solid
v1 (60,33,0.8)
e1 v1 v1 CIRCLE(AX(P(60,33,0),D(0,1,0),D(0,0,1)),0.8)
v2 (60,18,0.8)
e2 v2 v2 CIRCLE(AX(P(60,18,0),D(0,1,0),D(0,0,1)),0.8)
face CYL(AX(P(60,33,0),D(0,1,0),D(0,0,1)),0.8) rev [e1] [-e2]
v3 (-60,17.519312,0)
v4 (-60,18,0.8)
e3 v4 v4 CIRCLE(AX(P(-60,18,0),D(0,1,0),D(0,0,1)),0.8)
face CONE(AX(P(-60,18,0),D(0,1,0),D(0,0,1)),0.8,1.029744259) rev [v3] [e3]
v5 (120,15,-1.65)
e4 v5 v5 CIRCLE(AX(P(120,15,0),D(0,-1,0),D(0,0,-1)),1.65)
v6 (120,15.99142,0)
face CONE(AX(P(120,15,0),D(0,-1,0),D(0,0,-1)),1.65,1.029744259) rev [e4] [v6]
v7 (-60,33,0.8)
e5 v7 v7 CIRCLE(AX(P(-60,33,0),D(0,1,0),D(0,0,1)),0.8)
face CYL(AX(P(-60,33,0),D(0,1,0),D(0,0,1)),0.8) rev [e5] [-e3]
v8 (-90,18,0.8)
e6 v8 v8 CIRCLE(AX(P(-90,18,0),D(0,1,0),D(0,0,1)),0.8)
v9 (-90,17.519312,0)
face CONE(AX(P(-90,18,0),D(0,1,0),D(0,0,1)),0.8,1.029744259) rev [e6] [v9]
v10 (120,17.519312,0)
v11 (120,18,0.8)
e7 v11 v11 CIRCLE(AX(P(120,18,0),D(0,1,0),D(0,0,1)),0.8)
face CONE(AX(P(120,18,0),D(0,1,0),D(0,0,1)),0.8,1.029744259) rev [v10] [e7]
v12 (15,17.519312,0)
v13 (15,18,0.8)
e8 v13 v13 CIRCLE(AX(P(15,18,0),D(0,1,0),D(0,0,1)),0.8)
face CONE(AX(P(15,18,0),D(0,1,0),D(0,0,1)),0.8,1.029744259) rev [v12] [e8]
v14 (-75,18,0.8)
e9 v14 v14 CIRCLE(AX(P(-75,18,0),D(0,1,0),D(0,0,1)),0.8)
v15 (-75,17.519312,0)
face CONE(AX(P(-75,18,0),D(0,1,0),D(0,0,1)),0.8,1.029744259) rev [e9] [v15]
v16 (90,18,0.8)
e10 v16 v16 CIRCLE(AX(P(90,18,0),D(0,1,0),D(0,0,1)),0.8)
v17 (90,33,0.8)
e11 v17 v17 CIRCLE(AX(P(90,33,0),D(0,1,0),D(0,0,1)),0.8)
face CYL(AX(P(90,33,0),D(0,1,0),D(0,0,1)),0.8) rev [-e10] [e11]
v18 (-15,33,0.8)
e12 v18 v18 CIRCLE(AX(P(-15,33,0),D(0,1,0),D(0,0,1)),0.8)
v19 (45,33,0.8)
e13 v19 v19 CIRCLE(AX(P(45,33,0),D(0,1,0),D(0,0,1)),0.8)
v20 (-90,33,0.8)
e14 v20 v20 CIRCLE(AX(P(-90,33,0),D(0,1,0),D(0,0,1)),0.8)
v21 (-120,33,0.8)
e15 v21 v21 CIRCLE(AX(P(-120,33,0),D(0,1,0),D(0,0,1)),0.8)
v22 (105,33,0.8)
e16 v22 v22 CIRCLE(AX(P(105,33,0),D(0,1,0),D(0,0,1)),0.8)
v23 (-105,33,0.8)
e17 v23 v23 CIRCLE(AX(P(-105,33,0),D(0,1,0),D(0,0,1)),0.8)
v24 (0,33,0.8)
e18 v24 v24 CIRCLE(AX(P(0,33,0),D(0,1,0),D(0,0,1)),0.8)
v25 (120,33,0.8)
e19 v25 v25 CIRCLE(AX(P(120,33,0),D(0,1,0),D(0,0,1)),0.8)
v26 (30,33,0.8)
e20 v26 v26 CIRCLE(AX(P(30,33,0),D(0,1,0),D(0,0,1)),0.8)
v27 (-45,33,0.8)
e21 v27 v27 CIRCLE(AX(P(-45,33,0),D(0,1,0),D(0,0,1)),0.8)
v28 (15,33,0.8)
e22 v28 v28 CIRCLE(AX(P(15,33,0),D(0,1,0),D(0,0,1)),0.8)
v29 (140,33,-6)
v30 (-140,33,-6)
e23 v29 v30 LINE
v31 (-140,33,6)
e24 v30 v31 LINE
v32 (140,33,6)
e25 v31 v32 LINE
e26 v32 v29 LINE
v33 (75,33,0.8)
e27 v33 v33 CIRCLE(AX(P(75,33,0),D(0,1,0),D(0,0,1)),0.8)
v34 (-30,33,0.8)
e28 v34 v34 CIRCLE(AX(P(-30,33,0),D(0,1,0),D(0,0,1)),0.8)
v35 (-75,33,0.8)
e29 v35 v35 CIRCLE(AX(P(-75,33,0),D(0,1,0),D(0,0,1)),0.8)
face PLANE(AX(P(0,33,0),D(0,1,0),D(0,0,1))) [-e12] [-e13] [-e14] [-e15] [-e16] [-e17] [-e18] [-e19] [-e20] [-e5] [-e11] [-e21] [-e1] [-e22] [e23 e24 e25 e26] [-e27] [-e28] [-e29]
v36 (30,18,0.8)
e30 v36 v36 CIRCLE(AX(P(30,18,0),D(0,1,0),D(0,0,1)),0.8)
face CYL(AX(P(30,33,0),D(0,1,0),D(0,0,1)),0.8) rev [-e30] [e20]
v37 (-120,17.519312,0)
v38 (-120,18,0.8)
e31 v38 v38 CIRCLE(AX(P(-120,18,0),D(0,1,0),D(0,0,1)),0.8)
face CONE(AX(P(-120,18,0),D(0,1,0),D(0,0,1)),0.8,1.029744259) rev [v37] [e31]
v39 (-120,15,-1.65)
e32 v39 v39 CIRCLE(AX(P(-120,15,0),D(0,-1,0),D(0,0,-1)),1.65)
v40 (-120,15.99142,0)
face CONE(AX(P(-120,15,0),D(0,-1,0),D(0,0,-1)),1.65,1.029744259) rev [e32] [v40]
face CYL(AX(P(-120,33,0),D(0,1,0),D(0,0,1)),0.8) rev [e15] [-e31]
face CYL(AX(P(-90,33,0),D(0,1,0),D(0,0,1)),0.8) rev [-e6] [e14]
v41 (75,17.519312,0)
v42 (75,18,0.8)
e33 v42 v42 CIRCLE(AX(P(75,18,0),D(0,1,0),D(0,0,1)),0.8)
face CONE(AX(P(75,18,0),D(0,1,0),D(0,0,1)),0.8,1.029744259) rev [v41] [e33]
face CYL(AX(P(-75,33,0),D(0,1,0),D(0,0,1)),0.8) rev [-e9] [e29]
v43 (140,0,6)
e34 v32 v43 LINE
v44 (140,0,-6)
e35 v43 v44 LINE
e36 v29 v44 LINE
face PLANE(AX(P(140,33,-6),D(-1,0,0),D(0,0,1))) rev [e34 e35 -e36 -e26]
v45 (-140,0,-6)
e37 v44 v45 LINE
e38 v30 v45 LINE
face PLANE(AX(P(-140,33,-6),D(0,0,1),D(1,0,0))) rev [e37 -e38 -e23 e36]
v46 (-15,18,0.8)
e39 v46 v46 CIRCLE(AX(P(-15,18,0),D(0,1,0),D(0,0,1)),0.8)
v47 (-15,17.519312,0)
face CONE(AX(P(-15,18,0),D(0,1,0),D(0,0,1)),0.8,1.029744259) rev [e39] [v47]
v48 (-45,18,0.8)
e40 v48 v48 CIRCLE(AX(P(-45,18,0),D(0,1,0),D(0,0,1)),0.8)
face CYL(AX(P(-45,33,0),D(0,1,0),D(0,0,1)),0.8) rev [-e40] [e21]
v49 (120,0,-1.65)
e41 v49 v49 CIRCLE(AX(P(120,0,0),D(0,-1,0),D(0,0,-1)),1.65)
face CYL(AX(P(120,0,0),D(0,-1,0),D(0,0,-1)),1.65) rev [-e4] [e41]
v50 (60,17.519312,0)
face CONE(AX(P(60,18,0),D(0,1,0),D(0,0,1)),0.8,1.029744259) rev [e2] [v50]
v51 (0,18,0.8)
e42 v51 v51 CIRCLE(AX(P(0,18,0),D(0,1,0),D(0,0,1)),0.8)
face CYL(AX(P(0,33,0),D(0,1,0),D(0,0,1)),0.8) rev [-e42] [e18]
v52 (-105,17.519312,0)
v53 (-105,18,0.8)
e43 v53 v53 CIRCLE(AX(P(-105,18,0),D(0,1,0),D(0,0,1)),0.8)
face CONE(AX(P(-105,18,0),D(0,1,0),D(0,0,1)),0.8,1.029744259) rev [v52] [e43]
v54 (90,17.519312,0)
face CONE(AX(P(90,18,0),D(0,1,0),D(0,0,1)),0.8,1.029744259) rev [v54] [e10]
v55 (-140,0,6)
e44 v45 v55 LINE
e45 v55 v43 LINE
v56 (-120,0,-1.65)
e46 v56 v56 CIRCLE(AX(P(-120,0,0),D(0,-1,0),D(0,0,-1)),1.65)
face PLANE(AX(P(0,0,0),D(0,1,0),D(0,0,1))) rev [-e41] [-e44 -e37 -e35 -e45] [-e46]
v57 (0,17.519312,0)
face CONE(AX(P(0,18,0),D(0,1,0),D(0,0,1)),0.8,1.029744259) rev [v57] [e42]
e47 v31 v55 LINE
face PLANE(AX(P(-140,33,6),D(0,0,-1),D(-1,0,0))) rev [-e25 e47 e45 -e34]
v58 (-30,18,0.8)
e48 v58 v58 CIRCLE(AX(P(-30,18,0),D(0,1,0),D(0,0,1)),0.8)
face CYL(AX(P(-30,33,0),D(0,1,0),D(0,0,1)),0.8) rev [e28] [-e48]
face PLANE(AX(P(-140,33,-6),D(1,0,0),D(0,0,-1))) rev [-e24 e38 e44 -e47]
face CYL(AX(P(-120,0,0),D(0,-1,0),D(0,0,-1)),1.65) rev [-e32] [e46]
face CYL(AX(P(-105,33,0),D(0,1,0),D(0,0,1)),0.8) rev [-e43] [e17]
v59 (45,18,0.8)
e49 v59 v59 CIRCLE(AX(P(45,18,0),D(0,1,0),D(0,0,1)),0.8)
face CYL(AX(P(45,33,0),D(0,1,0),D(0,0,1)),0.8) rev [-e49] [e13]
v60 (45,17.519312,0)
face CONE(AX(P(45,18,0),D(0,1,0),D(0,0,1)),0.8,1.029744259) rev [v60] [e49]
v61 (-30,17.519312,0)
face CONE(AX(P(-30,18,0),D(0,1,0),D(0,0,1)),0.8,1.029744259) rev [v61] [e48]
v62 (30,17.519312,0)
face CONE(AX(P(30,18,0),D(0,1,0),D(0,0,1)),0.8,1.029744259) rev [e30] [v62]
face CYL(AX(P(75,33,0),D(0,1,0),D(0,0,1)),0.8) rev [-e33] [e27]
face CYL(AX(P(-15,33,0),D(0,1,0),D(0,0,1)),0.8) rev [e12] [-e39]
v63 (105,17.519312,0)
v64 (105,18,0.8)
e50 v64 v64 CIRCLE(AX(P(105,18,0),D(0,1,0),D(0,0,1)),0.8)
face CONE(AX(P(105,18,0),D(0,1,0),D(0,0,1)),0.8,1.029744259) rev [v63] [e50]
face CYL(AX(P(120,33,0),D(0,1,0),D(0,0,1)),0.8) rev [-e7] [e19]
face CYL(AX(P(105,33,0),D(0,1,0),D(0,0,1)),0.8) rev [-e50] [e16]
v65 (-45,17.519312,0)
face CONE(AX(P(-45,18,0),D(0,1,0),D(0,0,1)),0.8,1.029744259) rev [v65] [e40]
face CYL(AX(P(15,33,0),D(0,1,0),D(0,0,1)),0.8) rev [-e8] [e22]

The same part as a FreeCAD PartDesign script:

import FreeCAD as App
import Part
import Sketcher

V = App.Vector
Q = App.Units.Quantity


def add_polygon(sketch, points):
    """Adds a closed chain of lines whose ends are joined by coincident constraints."""
    first, n = sketch.GeometryCount, len(points)
    for a, b in zip(points, points[1:] + points[:1]):
        sketch.addGeometry(Part.LineSegment(App.Vector(*a, 0), App.Vector(*b, 0)), False)
    for i in range(n):
        sketch.addConstraint(Sketcher.Constraint("Coincident", first + i, 2, first + (i + 1) % n, 1))

doc = App.newDocument("Part")
params = doc.addObject("Spreadsheet::Sheet", "Params")
for row, (alias, value) in enumerate([
    ("sketch1_width", "280 mm"),
    ("sketch1_height", "12 mm"),
    ("pad1_length", "33 mm"),
    ("sketch2_width", "15 mm"),
    ("sketch2_height", "0.8 mm"),
    ("groove_angle", "360 deg"),
    ("linearpattern_pitch", "15 mm"),
    ("linearpattern2_pitch", "15 mm"),
    ("sketch3_diameter", "3.3 mm"),
    ("hole_diameter", "3.3 mm"),
    ("hole_depth", "15 mm"),
], start=1):
    params.set(f"A{row}", alias)
    params.set(f"B{row}", "=" + value)
    params.setAlias(f"B{row}", alias)

body = doc.addObject("PartDesign::Body", "Body")

sketch1 = body.newObject("Sketcher::SketchObject", "Sketch")
sketch1.AttachmentSupport = (doc.getObject("XZ_Plane"), [""])
sketch1.MapMode = "FlatFace"
add_polygon(sketch1, [(-140, -6), (-140, 6), (140, 6), (140, -6)])
sketch1.addConstraint([
    Sketcher.Constraint("Vertical", 0),
    Sketcher.Constraint("Horizontal", 1),
    Sketcher.Constraint("Vertical", 2),
    Sketcher.Constraint("Horizontal", 3),
    Sketcher.Constraint("Symmetric", 0, 2, 2, 2, -1, 1),
    Sketcher.Constraint("DistanceX", 1, 1, 1, 2, 280.0),
    Sketcher.Constraint("DistanceY", 0, 1, 0, 2, 12.0),
])
sketch1.setExpression("Constraints[9]", "Params.sketch1_width")
sketch1.setExpression("Constraints[10]", "Params.sketch1_height")
pad1 = body.newObject("PartDesign::Pad", "Pad")
pad1.Profile = sketch1
pad1.setExpression("Length", "Params.pad1_length")
pad1.Reversed = True

sketch2 = body.newObject("Sketcher::SketchObject", "Sketch001")
sketch2.AttachmentSupport = (doc.getObject("YZ_Plane"), [""])
sketch2.MapMode = "FlatFace"
add_polygon(sketch2, [(17.5, 0), (33, 0), (33, 0.8), (18, 0.8)])
sketch2.addConstraint([
    Sketcher.Constraint("Horizontal", 0),
    Sketcher.Constraint("Vertical", 1),
    Sketcher.Constraint("Horizontal", 2),
    Sketcher.Constraint("PointOnObject", 0, 2, -1),
    Sketcher.Constraint("DistanceX", 2, 2, 2, 1, 15.0),
    Sketcher.Constraint("Angle", 3, Q("-121 deg")),
    Sketcher.Constraint("DistanceY", 1, 1, 1, 2, 0.8),
    Sketcher.Constraint("DistanceX", -1, 1, 0, 2, 33.0),
])
sketch2.setExpression("Constraints[8]", "Params.sketch2_width")
sketch2.setExpression("Constraints[10]", "Params.sketch2_height")
groove = body.newObject("PartDesign::Groove", "Groove")
groove.Profile = sketch2
groove.ReferenceAxis = (sketch2, ["H_Axis"])
groove.setExpression("Angle", "Params.groove_angle")
doc.recompute()

linearpattern = body.newObject("PartDesign::LinearPattern", "LinearPattern")
linearpattern.Originals = [groove]
linearpattern.Direction = (doc.getObject("X_Axis"), [""])
linearpattern.Mode = "offset"
linearpattern.setExpression("Offset", "Params.linearpattern_pitch")
linearpattern.Occurrences = 9
body.Tip = linearpattern
doc.recompute()

linearpattern2 = body.newObject("PartDesign::LinearPattern", "LinearPattern001")
linearpattern2.Originals = [groove]
linearpattern2.Direction = (doc.getObject("X_Axis"), [""])
linearpattern2.Mode = "offset"
linearpattern2.setExpression("Offset", "Params.linearpattern2_pitch")
linearpattern2.Occurrences = 9
linearpattern2.Reversed = True
body.Tip = linearpattern2

sketch3 = body.newObject("Sketcher::SketchObject", "Sketch002")
sketch3.AttachmentSupport = (doc.getObject("XZ_Plane"), [""])
sketch3.MapMode = "FlatFace"
sketch3.addGeometry([
    Part.Circle(V(120, 0, 0), V(0, 0, 1), 1.6),
    Part.Circle(V(-120, 0, 0), V(0, 0, 1), 1.6),
], False)
sketch3.addConstraint([
    Sketcher.Constraint("Equal", 0, 1),
    Sketcher.Constraint("Symmetric", 0, 3, 1, 3, -1, 1),
    Sketcher.Constraint("PointOnObject", 0, 3, -1),
    Sketcher.Constraint("Diameter", 0, 3.3),
    Sketcher.Constraint("DistanceX", -1, 1, 0, 3, 120.0),
])
sketch3.setExpression("Constraints[3]", "Params.sketch3_diameter")
doc.recompute()
hole = body.newObject("PartDesign::Hole", "Hole")
hole.Profile = sketch3
hole.ThreadType = "None"
hole.setExpression("Diameter", "Params.hole_diameter")
hole.DepthType = "Dimension"
hole.setExpression("Depth", "Params.hole_depth")
hole.DrillPoint = "Angled"
hole.DrillPointAngle = 118

doc.recompute()
